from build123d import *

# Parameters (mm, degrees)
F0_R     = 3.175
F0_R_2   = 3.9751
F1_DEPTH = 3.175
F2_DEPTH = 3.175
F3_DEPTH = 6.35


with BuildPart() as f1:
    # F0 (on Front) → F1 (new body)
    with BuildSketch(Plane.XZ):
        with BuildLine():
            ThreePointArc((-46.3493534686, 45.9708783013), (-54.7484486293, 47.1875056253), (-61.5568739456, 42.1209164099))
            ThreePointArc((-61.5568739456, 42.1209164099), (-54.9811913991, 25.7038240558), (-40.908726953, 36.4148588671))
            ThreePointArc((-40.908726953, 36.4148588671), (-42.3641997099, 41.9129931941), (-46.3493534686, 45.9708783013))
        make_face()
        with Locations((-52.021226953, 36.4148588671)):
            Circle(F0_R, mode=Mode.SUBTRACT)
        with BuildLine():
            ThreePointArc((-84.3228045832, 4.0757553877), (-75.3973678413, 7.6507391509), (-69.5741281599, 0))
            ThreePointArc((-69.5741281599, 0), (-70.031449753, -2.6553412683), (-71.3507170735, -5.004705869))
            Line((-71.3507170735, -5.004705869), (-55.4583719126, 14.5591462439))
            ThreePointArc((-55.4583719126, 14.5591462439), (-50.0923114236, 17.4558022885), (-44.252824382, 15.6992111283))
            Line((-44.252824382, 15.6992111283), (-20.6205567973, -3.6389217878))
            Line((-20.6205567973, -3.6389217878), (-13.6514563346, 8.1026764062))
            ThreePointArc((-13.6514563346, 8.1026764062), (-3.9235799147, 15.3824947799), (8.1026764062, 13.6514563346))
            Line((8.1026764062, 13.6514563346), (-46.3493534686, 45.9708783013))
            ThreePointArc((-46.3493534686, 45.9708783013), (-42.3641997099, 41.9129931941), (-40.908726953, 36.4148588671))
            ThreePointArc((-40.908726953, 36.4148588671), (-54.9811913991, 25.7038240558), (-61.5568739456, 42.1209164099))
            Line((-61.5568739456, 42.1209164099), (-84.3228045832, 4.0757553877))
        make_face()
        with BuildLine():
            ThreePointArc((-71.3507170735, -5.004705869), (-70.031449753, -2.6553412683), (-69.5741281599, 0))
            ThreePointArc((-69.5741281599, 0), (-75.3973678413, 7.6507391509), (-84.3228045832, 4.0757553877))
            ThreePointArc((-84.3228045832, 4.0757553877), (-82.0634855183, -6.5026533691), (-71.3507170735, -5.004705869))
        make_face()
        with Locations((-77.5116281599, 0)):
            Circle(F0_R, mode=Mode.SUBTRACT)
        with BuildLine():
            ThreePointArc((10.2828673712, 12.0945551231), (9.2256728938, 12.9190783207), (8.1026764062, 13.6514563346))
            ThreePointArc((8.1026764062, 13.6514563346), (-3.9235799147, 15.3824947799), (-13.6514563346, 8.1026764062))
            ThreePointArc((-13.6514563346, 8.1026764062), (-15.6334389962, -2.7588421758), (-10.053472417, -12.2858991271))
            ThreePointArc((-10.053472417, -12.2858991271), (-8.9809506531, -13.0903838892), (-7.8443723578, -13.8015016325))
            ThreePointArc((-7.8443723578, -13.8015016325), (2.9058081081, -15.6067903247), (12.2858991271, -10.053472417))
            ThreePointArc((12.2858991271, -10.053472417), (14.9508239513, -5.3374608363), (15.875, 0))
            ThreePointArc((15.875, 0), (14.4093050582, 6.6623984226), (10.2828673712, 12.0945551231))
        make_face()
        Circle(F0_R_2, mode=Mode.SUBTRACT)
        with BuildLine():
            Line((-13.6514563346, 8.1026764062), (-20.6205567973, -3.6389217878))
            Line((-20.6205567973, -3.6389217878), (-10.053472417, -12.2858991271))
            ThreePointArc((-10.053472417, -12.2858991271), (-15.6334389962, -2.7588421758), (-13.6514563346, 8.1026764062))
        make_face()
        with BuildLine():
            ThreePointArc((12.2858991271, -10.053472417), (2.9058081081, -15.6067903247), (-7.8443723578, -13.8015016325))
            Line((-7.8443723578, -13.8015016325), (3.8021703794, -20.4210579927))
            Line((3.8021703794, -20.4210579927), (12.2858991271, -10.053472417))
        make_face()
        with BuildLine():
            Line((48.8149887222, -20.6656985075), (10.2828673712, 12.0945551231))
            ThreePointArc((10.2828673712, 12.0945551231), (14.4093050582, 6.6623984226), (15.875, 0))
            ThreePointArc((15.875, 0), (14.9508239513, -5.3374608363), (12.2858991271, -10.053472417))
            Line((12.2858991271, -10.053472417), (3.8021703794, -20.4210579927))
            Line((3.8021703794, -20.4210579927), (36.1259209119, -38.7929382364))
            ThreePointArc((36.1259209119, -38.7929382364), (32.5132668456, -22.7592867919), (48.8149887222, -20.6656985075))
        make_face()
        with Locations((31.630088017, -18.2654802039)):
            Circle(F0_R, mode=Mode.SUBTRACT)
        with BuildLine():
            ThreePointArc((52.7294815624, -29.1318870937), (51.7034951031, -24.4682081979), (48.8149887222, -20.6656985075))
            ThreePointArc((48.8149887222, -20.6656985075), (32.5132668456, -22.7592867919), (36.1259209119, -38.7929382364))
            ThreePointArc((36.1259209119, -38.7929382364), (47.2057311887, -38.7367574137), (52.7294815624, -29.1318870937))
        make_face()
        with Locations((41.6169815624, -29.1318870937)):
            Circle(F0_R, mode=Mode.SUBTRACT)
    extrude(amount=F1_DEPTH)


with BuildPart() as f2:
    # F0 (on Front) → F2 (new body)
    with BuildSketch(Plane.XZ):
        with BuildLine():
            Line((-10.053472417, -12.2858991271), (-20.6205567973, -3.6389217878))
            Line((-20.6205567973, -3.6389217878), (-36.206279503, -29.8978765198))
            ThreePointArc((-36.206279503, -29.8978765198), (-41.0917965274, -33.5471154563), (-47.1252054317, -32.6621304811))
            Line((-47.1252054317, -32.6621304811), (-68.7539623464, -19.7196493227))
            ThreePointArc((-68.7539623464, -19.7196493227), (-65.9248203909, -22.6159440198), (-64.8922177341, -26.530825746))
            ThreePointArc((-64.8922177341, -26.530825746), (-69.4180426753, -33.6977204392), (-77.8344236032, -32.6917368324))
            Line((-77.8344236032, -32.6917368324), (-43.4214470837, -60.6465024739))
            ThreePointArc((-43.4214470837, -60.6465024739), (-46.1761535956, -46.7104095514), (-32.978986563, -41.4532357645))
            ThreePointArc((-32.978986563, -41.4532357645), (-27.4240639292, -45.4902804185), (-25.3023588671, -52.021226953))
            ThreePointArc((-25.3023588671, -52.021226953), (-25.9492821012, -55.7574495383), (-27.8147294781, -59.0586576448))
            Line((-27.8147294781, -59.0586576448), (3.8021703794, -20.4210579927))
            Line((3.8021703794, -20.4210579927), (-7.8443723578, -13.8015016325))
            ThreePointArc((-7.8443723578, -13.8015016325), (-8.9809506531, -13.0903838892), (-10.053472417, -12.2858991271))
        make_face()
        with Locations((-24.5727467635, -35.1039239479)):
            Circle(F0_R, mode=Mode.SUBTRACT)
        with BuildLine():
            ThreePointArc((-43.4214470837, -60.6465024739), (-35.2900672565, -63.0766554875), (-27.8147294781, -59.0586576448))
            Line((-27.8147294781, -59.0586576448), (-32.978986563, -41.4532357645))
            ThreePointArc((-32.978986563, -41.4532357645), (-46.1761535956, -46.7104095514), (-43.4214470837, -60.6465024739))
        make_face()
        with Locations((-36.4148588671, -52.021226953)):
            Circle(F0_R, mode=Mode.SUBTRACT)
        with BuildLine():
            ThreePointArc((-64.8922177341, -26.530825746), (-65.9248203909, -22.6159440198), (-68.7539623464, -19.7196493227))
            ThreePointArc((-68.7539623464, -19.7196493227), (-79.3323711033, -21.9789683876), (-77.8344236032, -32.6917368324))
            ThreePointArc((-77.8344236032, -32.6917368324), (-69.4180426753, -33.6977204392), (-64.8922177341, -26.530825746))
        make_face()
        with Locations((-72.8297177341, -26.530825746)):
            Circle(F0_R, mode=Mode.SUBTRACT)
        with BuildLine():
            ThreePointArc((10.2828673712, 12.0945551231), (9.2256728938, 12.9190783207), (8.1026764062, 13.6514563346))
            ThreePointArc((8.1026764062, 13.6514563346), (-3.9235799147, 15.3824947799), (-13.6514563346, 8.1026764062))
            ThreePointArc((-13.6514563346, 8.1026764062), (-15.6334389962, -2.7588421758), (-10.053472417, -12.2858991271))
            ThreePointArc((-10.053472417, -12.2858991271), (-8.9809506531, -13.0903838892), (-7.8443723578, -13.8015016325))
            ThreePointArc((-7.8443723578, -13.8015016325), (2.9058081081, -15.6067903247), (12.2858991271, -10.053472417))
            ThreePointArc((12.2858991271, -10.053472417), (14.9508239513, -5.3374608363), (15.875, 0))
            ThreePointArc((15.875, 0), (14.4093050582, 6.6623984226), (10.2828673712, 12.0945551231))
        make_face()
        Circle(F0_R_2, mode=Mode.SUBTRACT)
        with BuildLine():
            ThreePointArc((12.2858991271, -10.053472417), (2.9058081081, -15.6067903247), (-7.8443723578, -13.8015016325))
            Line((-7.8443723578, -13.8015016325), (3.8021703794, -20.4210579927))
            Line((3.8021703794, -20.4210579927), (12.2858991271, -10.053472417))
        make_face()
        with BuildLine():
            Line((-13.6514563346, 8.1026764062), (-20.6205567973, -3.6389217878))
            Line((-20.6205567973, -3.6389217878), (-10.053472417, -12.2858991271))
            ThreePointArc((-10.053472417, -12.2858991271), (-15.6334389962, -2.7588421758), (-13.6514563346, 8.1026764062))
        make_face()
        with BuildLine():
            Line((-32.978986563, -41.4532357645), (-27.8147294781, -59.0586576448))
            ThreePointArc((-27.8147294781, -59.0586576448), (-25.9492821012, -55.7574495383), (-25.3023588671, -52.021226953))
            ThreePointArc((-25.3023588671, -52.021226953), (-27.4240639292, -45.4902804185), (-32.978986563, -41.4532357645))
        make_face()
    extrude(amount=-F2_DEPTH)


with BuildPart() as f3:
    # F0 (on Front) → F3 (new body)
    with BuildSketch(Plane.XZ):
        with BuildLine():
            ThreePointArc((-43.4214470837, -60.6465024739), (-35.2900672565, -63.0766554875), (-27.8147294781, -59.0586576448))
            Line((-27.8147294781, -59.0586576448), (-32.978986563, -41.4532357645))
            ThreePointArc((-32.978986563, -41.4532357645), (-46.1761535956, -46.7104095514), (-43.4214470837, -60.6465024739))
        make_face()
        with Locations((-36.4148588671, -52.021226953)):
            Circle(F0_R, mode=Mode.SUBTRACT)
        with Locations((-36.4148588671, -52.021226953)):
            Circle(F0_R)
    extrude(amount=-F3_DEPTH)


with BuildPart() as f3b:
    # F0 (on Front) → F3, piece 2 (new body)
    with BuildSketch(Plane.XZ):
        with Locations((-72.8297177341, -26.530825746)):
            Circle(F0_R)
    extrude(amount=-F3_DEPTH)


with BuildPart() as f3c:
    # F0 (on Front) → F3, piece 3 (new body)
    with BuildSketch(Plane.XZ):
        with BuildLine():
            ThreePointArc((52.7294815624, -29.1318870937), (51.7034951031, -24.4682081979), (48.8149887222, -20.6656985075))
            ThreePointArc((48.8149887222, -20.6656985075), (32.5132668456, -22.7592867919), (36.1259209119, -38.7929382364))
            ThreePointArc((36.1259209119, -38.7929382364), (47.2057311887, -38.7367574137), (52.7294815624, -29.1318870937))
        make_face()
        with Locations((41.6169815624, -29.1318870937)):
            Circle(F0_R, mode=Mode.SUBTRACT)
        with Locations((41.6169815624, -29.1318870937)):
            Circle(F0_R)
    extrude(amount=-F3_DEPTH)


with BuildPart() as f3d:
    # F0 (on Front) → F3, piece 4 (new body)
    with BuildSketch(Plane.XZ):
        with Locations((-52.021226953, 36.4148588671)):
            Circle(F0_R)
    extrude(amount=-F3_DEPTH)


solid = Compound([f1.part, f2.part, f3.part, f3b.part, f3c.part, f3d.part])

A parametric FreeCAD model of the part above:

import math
import FreeCAD as App
import Part
import Sketcher

V = App.Vector
Q = App.Units.Quantity

doc = App.newDocument("Part")
body = doc.addObject("PartDesign::Body", "Body")

# Sketch on XZ plane
sketch1 = doc.addObject("Sketcher::SketchObject", "Sketch")
body.addObject(sketch1)
sketch1.AttachmentSupport = (doc.XZ_Plane, [""])
sketch1.MapMode = "FlatFace"
sketch1.addGeometry(Part.ArcOfCircle(Part.Circle(V(-52, 36.4, 0), V(0, 0, 1), 11.1), math.radians(59), math.radians(149)), False)
sketch1.addGeometry(Part.LineSegment(V(-61.6, 42.1, 0), V(-84.3, 4.1, 0)), False)
sketch1.addGeometry(Part.ArcOfCircle(Part.Circle(V(-77.5, 0, 0), V(0, 0, 1), 7.9), math.radians(149), math.radians(321)), False)
sketch1.addGeometry(Part.LineSegment(V(-71.4, -5, 0), V(-55.5, 14.6, 0)), False)
sketch1.addGeometry(Part.ArcOfCircle(Part.Circle(V(-49.3, 9.5, 0), V(0, 0, 1), 8), math.radians(51), math.radians(141)), False)
sketch1.addGeometry(Part.LineSegment(V(-44.3, 15.7, 0), V(-20.6, -3.6, 0)), False)
sketch1.addGeometry(Part.LineSegment(V(-20.6, -3.6, 0), V(-10.1, -12.3, 0)), False)
sketch1.addGeometry(Part.ArcOfCircle(Part.Circle(V(0, 0, 0), V(0, 0, 1), 15.9), math.radians(-129.29), math.radians(-119.61)), False)
sketch1.addGeometry(Part.LineSegment(V(-7.8, -13.8, 0), V(3.8, -20.4, 0)), False)
sketch1.addGeometry(Part.LineSegment(V(3.8, -20.4, 0), V(36.1, -38.8, 0)), False)
sketch1.addGeometry(Part.ArcOfCircle(Part.Circle(V(41.6, -29.1, 0), V(0, 0, 1), 11.1), math.radians(-120), math.radians(0)), False)
sketch1.addGeometry(Part.ArcOfCircle(Part.Circle(V(41.6, -29.1, 0), V(0, 0, 1), 11.1), math.radians(0), math.radians(50)), False)
sketch1.addGeometry(Part.LineSegment(V(48.8, -20.7, 0), V(10.3, 12.1, 0)), False)
sketch1.addGeometry(Part.ArcOfCircle(Part.Circle(V(0, 0, 0), V(0, 0, 1), 15.9), math.radians(49.63), math.radians(59.31)), False)
sketch1.addGeometry(Part.LineSegment(V(8.1, 13.7, 0), V(-46.3, 46, 0)), False)
sketch1.addGeometry(Part.Circle(V(-77.5, 0, 0), V(0, 0, 1), 3.2), False)
sketch1.addGeometry(Part.Circle(V(41.6, -29.1, 0), V(0, 0, 1), 3.2), False)
sketch1.addGeometry(Part.Circle(V(31.6, -18.3, 0), V(0, 0, 1), 3.2), False)
sketch1.addGeometry(Part.Circle(V(0, 0, 0), V(0, 0, 1), 4), False)
sketch1.addGeometry(Part.Circle(V(-52, 36.4, 0), V(0, 0, 1), 3.2), False)
sketch1.addConstraint(Sketcher.Constraint("Tangent", 0, 2, 1, 1))
sketch1.addConstraint(Sketcher.Constraint("Tangent", 1, 2, 2, 1))
sketch1.addConstraint(Sketcher.Constraint("Tangent", 2, 2, 3, 1))
sketch1.addConstraint(Sketcher.Constraint("Tangent", 3, 2, 4, 2))
sketch1.addConstraint(Sketcher.Constraint("Tangent", 4, 1, 5, 1))
sketch1.addConstraint(Sketcher.Constraint("Coincident", 5, 2, 6, 1))
sketch1.addConstraint(Sketcher.Constraint("Tangent", 6, 2, 7, 1))
sketch1.addConstraint(Sketcher.Constraint("Tangent", 7, 2, 8, 1))
sketch1.addConstraint(Sketcher.Constraint("Coincident", 8, 2, 9, 1))
sketch1.addConstraint(Sketcher.Constraint("Tangent", 9, 2, 10, 1))
sketch1.addConstraint(Sketcher.Constraint("Tangent", 10, 2, 11, 1))
sketch1.addConstraint(Sketcher.Constraint("Tangent", 11, 2, 12, 1))
sketch1.addConstraint(Sketcher.Constraint("Tangent", 12, 2, 13, 1))
sketch1.addConstraint(Sketcher.Constraint("Tangent", 13, 2, 14, 1))
sketch1.addConstraint(Sketcher.Constraint("Tangent", 14, 2, 0, 1))
sketch1.addConstraint(Sketcher.Constraint("Coincident", 7, 3, -1, 1))
sketch1.addConstraint(Sketcher.Constraint("Coincident", 13, 3, -1, 1))
sketch1.addConstraint(Sketcher.Constraint("Coincident", 18, 3, -1, 1))
sketch1.addConstraint(Sketcher.Constraint("Coincident", 15, 3, 2, 3))
sketch1.addConstraint(Sketcher.Constraint("Coincident", 16, 3, 10, 3))
sketch1.addConstraint(Sketcher.Constraint("Coincident", 19, 3, 0, 3))
sketch1.addConstraint(Sketcher.Constraint("Equal", 0, 10))
sketch1.addConstraint(Sketcher.Constraint("Equal", 10, 11))
sketch1.addConstraint(Sketcher.Constraint("Equal", 7, 13))
sketch1.addConstraint(Sketcher.Constraint("Equal", 15, 16))
sketch1.addConstraint(Sketcher.Constraint("Equal", 16, 17))
sketch1.addConstraint(Sketcher.Constraint("Equal", 17, 19))
sketch1.addConstraint(Sketcher.Constraint("PointOnObject", 2, 3, -1))
sketch1.addConstraint(Sketcher.Constraint("Parallel", 5, 6))
sketch1.addConstraint(Sketcher.Constraint("Parallel", 8, 9))
sketch1.addConstraint(Sketcher.Constraint("Horizontal", 16, 3, 10, 2))
sketch1.addConstraint(Sketcher.Constraint("Diameter", 15, Q("0.25 in")))
sketch1.addConstraint(Sketcher.Constraint("Diameter", 18, Q("0.313 in")))
sketch1.addConstraint(Sketcher.Constraint("Radius", 0, Q("0.4375 in")))
sketch1.addConstraint(Sketcher.Constraint("Radius", 2, Q("0.3125 in")))
sketch1.addConstraint(Sketcher.Constraint("Radius", 4, Q("0.313 in")))
sketch1.addConstraint(Sketcher.Constraint("Radius", 7, Q("0.625 in")))
sketch1.addConstraint(Sketcher.Constraint("DistanceY", 6, 2, -1, 1, Q("12.285899 mm")))
sketch1.addConstraint(Sketcher.Constraint("DistanceY", 7, 2, -1, 1, Q("13.801502 mm")))
sketch1.addConstraint(Sketcher.Constraint("DistanceY", 11, 2, -1, 1, Q("20.665699 mm")))
sketch1.addConstraint(Sketcher.Constraint("DistanceX", 2, 3, 0, 3, Q("25.490401 mm")))
sketch1.addConstraint(Sketcher.Constraint("DistanceX", 1, 2, 4, 3, Q("35.035201 mm")))
sketch1.addConstraint(Sketcher.Constraint("DistanceX", 17, 3, 11, 2, Q("17.184901 mm")))
sketch1.addConstraint(Sketcher.Constraint("DistanceY", 12, 2, 13, 2, Q("1.556901 mm")))
sketch1.addConstraint(Sketcher.Constraint("Distance", 9, Q("37.179979 mm")))
sketch1.addConstraint(Sketcher.Constraint("DistanceY", -1, 1, 0, 3, Q("36.414859 mm")))
sketch1.addConstraint(Sketcher.Constraint("DistanceY", 17, 3, -1, 1, Q("18.26548 mm")))
sketch1.addConstraint(Sketcher.Constraint("DistanceY", 5, 2, -1, 1, Q("3.638922 mm")))
pad1 = doc.addObject("PartDesign::Pad", "Pad")
body.addObject(pad1)
pad1.Profile = sketch1
pad1.Length = Q("0.125 in")
body2 = doc.addObject("PartDesign::Body", "Body001")

# Sketch on XZ plane
sketch2 = doc.addObject("Sketcher::SketchObject", "Sketch001")
body2.addObject(sketch2)
sketch2.AttachmentSupport = (doc.getObject("XZ_Plane001"), [""])
sketch2.MapMode = "FlatFace"
sketch2.addGeometry(Part.ArcOfCircle(Part.Circle(V(-36.414859, -52.021227, 0), V(0, 0, 1), 11.1125), math.radians(-129.088064), math.radians(-39.293243)), False)
sketch2.addGeometry(Part.LineSegment(V(-27.814729, -59.058658, 0), V(12.285899, -10.053472, 0)), False)
sketch2.addGeometry(Part.ArcOfCircle(Part.Circle(V(0, 0, 0), V(0, 0, 1), 15.875), math.radians(-39.293243), math.radians(0)), False)
sketch2.addGeometry(Part.ArcOfCircle(Part.Circle(V(0, 0, 0), V(0, 0, 1), 15.875), math.radians(0), math.radians(49.628601)), False)
sketch2.addGeometry(Part.ArcOfCircle(Part.Circle(V(0, 0, 0), V(0, 0, 1), 15.875), math.radians(49.628601), math.radians(59.309202)), False)
sketch2.addGeometry(Part.ArcOfCircle(Part.Circle(V(0, 0, 0), V(0, 0, 1), 15.875), math.radians(59.309202), math.radians(149.309202)), False)
sketch2.addGeometry(Part.LineSegment(V(-13.651456, 8.102676, 0), V(-20.620557, -3.638922, 0)), False)
sketch2.addGeometry(Part.LineSegment(V(-20.620557, -3.638922, 0), V(-36.20628, -29.897877, 0)), False)
sketch2.addGeometry(Part.ArcOfCircle(Part.Circle(V(-43.042929, -25.840056, 0), V(0, 0, 1), 7.9502), math.radians(-120.895976), math.radians(-30.690798)), False)
sketch2.addGeometry(Part.LineSegment(V(-47.125205, -32.66213, 0), V(-68.753962, -19.719649, 0)), False)
sketch2.addGeometry(Part.ArcOfCircle(Part.Circle(V(-72.829718, -26.530826, 0), V(0, 0, 1), 7.9375), math.radians(59.104024), math.radians(230.911936)), False)
sketch2.addGeometry(Part.LineSegment(V(-77.834424, -32.691737, 0), V(-43.421447, -60.646502, 0)), False)
sketch2.addGeometry(Part.Circle(V(-36.414859, -52.021227, 0), V(0, 0, 1), 3.175), False)
sketch2.addGeometry(Part.Circle(V(-24.572747, -35.103924, 0), V(0, 0, 1), 3.175), False)
sketch2.addGeometry(Part.Circle(V(-72.829718, -26.530826, 0), V(0, 0, 1), 3.175), False)
sketch2.addGeometry(Part.Circle(V(0, 0, 0), V(0, 0, 1), 3.9751), False)
sketch2.addConstraint(Sketcher.Constraint("Coincident", 0, 2, 1, 1))
sketch2.addConstraint(Sketcher.Constraint("Coincident", 1, 2, 2, 1))
sketch2.addConstraint(Sketcher.Constraint("Coincident", 2, 2, 3, 1))
sketch2.addConstraint(Sketcher.Constraint("Coincident", 3, 2, 4, 1))
sketch2.addConstraint(Sketcher.Constraint("Coincident", 4, 2, 5, 1))
sketch2.addConstraint(Sketcher.Constraint("Coincident", 5, 2, 6, 1))
sketch2.addConstraint(Sketcher.Constraint("Coincident", 6, 2, 7, 1))
sketch2.addConstraint(Sketcher.Constraint("Coincident", 7, 2, 8, 2))
sketch2.addConstraint(Sketcher.Constraint("Coincident", 8, 1, 9, 1))
sketch2.addConstraint(Sketcher.Constraint("Coincident", 9, 2, 10, 1))
sketch2.addConstraint(Sketcher.Constraint("Coincident", 10, 2, 11, 1))
sketch2.addConstraint(Sketcher.Constraint("Coincident", 11, 2, 0, 1))
sketch2.addConstraint(Sketcher.Constraint("Coincident", 2, 3, -1, 1))
sketch2.addConstraint(Sketcher.Constraint("Coincident", 3, 3, -1, 1))
sketch2.addConstraint(Sketcher.Constraint("Coincident", 4, 3, -1, 1))
sketch2.addConstraint(Sketcher.Constraint("Coincident", 5, 3, -1, 1))
sketch2.addConstraint(Sketcher.Constraint("Coincident", 15, 3, -1, 1))
sketch2.addConstraint(Sketcher.Constraint("Coincident", 12, 3, 0, 3))
sketch2.addConstraint(Sketcher.Constraint("Coincident", 14, 3, 10, 3))
sketch2.addConstraint(Sketcher.Constraint("PointOnObject", 2, 2, -1))
sketch2.addConstraint(Sketcher.Constraint("Diameter", 12, Q("0.25 in")))
sketch2.addConstraint(Sketcher.Constraint("Diameter", 13, Q("0.25 in")))
sketch2.addConstraint(Sketcher.Constraint("Diameter", 14, Q("0.25 in")))
sketch2.addConstraint(Sketcher.Constraint("Diameter", 15, Q("0.313 in")))
sketch2.addConstraint(Sketcher.Constraint("Radius", 0, Q("0.4375 in")))
sketch2.addConstraint(Sketcher.Constraint("Radius", 2, Q("0.625 in")))
sketch2.addConstraint(Sketcher.Constraint("Radius", 8, Q("0.313 in")))
sketch2.addConstraint(Sketcher.Constraint("Radius", 10, Q("0.3125 in")))
sketch2.addConstraint(Sketcher.Constraint("DistanceX", -1, 1, 1, 2, Q("12.285899 mm")))
sketch2.addConstraint(Sketcher.Constraint("DistanceY", 0, 3, 10, 3, Q("25.490401 mm")))
sketch2.addConstraint(Sketcher.Constraint("DistanceY", 13, 3, 14, 3, Q("8.573098 mm")))
sketch2.addConstraint(Sketcher.Constraint("DistanceX", 8, 3, 0, 2, Q("15.228199 mm")))
sketch2.addConstraint(Sketcher.Constraint("DistanceY", 0, 2, 8, 3, Q("33.218601 mm")))
sketch2.addConstraint(Sketcher.Constraint("DistanceY", 3, 2, 4, 2, Q("1.556901 mm")))
sketch2.addConstraint(Sketcher.Constraint("DistanceX", 6, 2, 5, 2, Q("6.9691 mm")))
sketch2.addConstraint(Sketcher.Constraint("DistanceY", 6, 2, 5, 2, Q("11.741598 mm")))
sketch2.addConstraint(Sketcher.Constraint("DistanceX", 0, 3, -1, 1, Q("36.414859 mm")))
sketch2.addConstraint(Sketcher.Constraint("DistanceX", 8, 3, -1, 1, Q("43.042929 mm")))
sketch2.addConstraint(Sketcher.Constraint("DistanceY", 6, 2, -1, 1, Q("3.638922 mm")))
sketch2.addConstraint(Sketcher.Constraint("DistanceX", 7, 2, -1, 1, Q("36.20628 mm")))
sketch2.addConstraint(Sketcher.Constraint("DistanceY", 8, 1, -1, 1, Q("32.66213 mm")))
sketch2.addConstraint(Sketcher.Constraint("DistanceY", 9, 2, -1, 1, Q("19.719649 mm")))
sketch2.addConstraint(Sketcher.Constraint("DistanceX", 10, 3, 8, 3, Q("29.786789 mm")))
sketch2.addConstraint(Sketcher.Constraint("DistanceX", 14, 3, 13, 3, Q("48.256971 mm")))
sketch2.addConstraint(Sketcher.Constraint("DistanceX", 4, 2, 3, 2, Q("2.180191 mm")))
sketch2.addConstraint(Sketcher.Constraint("DistanceX", 8, 1, 13, 3, Q("22.552459 mm")))
sketch2.addConstraint(Sketcher.Constraint("DistanceY", 10, 2, 10, 3, Q("6.160911 mm")))
sketch2.addConstraint(Sketcher.Constraint("DistanceX", 11, 2, 0, 3, Q("7.006588 mm")))
pad2 = doc.addObject("PartDesign::Pad", "Pad001")
body2.addObject(pad2)
pad2.Profile = sketch2
pad2.Length = Q("0.125 in")
pad2.Reversed = True
body3 = doc.addObject("PartDesign::Body", "Body002")

# Sketch on XZ plane
sketch3 = doc.addObject("Sketcher::SketchObject", "Sketch002")
body3.addObject(sketch3)
sketch3.AttachmentSupport = (doc.getObject("XZ_Plane002"), [""])
sketch3.MapMode = "FlatFace"
sketch3.addGeometry(Part.ArcOfCircle(Part.Circle(V(-36, -52, 0), V(0, 0, 1), 11), math.radians(-129), math.radians(-39)), False)
sketch3.addGeometry(Part.LineSegment(V(-28, -59, 0), V(-33, -41, 0)), False)
sketch3.addGeometry(Part.ArcOfCircle(Part.Circle(V(-36, -52, 0), V(0, 0, 1), 11), math.radians(72), math.radians(231)), False)
sketch3.addConstraint(Sketcher.Constraint("Coincident", 0, 2, 1, 1))
sketch3.addConstraint(Sketcher.Constraint("Coincident", 1, 2, 2, 1))
sketch3.addConstraint(Sketcher.Constraint("Tangent", 2, 2, 0, 1))
sketch3.addConstraint(Sketcher.Constraint("Equal", 0, 2))
sketch3.addConstraint(Sketcher.Constraint("Radius", 0, Q("0.4375 in")))
sketch3.addConstraint(Sketcher.Constraint("Distance", 1, Q("18.347219 mm")))
sketch3.addConstraint(Sketcher.Constraint("DistanceX", 0, 3, -1, 1, Q("36.414859 mm")))
sketch3.addConstraint(Sketcher.Constraint("DistanceX", 0, 2, -1, 1, Q("27.814729 mm")))
sketch3.addConstraint(Sketcher.Constraint("DistanceX", 2, 2, 0, 3, Q("7.006588 mm")))
sketch3.addConstraint(Sketcher.Constraint("DistanceY", 0, 3, -1, 1, Q("52.021227 mm")))
pad3 = doc.addObject("PartDesign::Pad", "Pad002")
body3.addObject(pad3)
pad3.Profile = sketch3
pad3.Length = Q("0.25 in")
pad3.Reversed = True
body4 = doc.addObject("PartDesign::Body", "Body003")

# Sketch on XZ plane
sketch4 = doc.addObject("Sketcher::SketchObject", "Sketch003")
body4.addObject(sketch4)
sketch4.AttachmentSupport = (doc.getObject("XZ_Plane003"), [""])
sketch4.MapMode = "FlatFace"
sketch4.addGeometry(Part.Circle(V(-72.8, -26.5, 0), V(0, 0, 1), 3.2), False)
sketch4.addConstraint(Sketcher.Constraint("Diameter", 0, Q("0.25 in")))
sketch4.addConstraint(Sketcher.Constraint("DistanceX", 0, 3, -1, 1, Q("72.829718 mm")))
sketch4.addConstraint(Sketcher.Constraint("DistanceY", 0, 3, -1, 1, Q("26.530826 mm")))
pad4 = doc.addObject("PartDesign::Pad", "Pad003")
body4.addObject(pad4)
pad4.Profile = sketch4
pad4.Length = Q("0.25 in")
pad4.Reversed = True
body5 = doc.addObject("PartDesign::Body", "Body004")

# Sketch on XZ plane
sketch5 = doc.addObject("Sketcher::SketchObject", "Sketch004")
body5.addObject(sketch5)
sketch5.AttachmentSupport = (doc.getObject("XZ_Plane004"), [""])
sketch5.MapMode = "FlatFace"
sketch5.addGeometry(Part.ArcOfCircle(Part.Circle(V(42, -29, 0), V(0, 0, 1), 11), math.radians(0), math.radians(50)), False)
sketch5.addGeometry(Part.ArcOfCircle(Part.Circle(V(42, -29, 0), V(0, 0, 1), 11), math.radians(50), math.radians(240)), False)
sketch5.addGeometry(Part.ArcOfCircle(Part.Circle(V(42, -29, 0), V(0, 0, 1), 11), math.radians(-120), math.radians(0)), False)
sketch5.addConstraint(Sketcher.Constraint("Tangent", 0, 2, 1, 1))
sketch5.addConstraint(Sketcher.Constraint("Tangent", 1, 2, 2, 1))
sketch5.addConstraint(Sketcher.Constraint("Tangent", 2, 2, 0, 1))
sketch5.addConstraint(Sketcher.Constraint("Horizontal", 1, 3, 2, 2))
sketch5.addConstraint(Sketcher.Constraint("Radius", 0, Q("0.4375 in")))
sketch5.addConstraint(Sketcher.Constraint("DistanceY", 0, 2, -1, 1, Q("20.665699 mm")))
sketch5.addConstraint(Sketcher.Constraint("DistanceX", -1, 1, 0, 3, Q("41.616982 mm")))
sketch5.addConstraint(Sketcher.Constraint("DistanceX", -1, 1, 0, 2, Q("48.814989 mm")))
sketch5.addConstraint(Sketcher.Constraint("DistanceX", -1, 1, 1, 2, Q("36.125921 mm")))
pad5 = doc.addObject("PartDesign::Pad", "Pad004")
body5.addObject(pad5)
pad5.Profile = sketch5
pad5.Length = Q("0.25 in")
pad5.Reversed = True
body6 = doc.addObject("PartDesign::Body", "Body005")

# Sketch on XZ plane
sketch6 = doc.addObject("Sketcher::SketchObject", "Sketch005")
body6.addObject(sketch6)
sketch6.AttachmentSupport = (doc.getObject("XZ_Plane005"), [""])
sketch6.MapMode = "FlatFace"
sketch6.addGeometry(Part.Circle(V(-52, 36.4, 0), V(0, 0, 1), 3.2), False)
sketch6.addConstraint(Sketcher.Constraint("Diameter", 0, Q("0.25 in")))
sketch6.addConstraint(Sketcher.Constraint("DistanceY", -1, 1, 0, 3, Q("36.414859 mm")))
sketch6.addConstraint(Sketcher.Constraint("DistanceX", 0, 3, -1, 1, Q("52.021227 mm")))
pad6 = doc.addObject("PartDesign::Pad", "Pad005")
body6.addObject(pad6)
pad6.Profile = sketch6
pad6.Length = Q("0.25 in")
pad6.Reversed = True

doc.recompute()
